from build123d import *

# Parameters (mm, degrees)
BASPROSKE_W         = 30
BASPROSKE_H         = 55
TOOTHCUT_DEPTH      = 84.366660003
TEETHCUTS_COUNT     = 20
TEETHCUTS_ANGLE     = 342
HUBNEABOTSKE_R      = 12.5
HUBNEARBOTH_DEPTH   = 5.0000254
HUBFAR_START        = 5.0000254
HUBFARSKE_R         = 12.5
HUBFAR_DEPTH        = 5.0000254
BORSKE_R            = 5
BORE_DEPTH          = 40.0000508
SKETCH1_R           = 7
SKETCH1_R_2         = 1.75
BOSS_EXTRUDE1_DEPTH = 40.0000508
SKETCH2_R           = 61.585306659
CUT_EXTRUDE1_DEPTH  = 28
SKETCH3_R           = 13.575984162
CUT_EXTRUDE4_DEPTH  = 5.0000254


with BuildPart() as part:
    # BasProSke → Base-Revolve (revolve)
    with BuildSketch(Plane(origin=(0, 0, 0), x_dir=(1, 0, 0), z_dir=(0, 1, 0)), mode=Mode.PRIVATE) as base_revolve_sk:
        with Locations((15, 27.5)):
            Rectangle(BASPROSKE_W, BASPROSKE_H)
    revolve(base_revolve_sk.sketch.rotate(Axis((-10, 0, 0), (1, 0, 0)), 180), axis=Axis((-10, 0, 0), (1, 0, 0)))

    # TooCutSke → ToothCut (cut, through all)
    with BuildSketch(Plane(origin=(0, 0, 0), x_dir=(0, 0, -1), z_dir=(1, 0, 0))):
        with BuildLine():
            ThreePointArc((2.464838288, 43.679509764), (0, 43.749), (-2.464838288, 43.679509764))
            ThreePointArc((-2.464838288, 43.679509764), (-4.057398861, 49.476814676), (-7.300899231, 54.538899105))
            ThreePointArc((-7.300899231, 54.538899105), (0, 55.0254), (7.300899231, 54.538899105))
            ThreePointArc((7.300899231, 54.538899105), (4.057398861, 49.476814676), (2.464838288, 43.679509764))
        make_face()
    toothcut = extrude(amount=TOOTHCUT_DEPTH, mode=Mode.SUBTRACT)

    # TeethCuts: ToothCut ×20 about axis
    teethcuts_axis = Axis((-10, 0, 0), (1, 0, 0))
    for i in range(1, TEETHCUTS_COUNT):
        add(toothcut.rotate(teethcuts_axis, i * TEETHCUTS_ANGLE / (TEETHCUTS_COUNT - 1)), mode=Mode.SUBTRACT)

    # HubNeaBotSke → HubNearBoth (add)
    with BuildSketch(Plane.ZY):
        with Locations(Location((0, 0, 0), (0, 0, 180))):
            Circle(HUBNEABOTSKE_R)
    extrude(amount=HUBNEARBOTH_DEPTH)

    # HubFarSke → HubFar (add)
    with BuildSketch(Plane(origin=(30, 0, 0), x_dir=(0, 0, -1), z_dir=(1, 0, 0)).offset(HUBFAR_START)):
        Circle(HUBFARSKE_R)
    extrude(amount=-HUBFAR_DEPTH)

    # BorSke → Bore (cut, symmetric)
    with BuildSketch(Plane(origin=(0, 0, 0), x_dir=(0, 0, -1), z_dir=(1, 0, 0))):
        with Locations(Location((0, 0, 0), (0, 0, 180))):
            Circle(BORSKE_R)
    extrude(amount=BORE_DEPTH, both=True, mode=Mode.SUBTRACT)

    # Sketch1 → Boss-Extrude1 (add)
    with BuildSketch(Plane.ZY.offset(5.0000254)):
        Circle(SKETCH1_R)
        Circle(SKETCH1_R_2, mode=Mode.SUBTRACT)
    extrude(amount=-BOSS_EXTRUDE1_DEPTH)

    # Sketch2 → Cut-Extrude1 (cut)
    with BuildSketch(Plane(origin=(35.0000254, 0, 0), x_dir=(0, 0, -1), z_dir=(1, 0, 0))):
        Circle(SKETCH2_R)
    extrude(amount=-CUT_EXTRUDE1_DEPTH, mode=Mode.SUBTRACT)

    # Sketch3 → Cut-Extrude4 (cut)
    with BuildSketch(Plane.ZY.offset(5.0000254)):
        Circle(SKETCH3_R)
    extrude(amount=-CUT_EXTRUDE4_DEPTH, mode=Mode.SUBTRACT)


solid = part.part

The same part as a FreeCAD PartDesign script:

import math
import FreeCAD as App
import Part
import Sketcher
Q = App.Units.Quantity


def add_polygon(sketch, points):
    """Adds a closed chain of lines whose ends are joined by coincident constraints."""
    first, n = sketch.GeometryCount, len(points)
    for a, b in zip(points, points[1:] + points[:1]):
        sketch.addGeometry(Part.LineSegment(App.Vector(*a, 0), App.Vector(*b, 0)), False)
    for i in range(n):
        sketch.addConstraint(Sketcher.Constraint("Coincident", first + i, 2, first + (i + 1) % n, 1))

doc = App.newDocument("Part")
body = doc.addObject("PartDesign::Body", "Body")

sketch1 = doc.addObject("Sketcher::SketchObject", "Sketch")
body.addObject(sketch1)
sketch1.AttachmentSupport = (doc.XZ_Plane, [""])
sketch1.MapMode = "FlatFace"
add_polygon(sketch1, [(0, -55), (0, 0), (30, 0), (30, -55)])
sketch1.addConstraint([
    Sketcher.Constraint("Vertical", 0),
    Sketcher.Constraint("Horizontal", 1),
    Sketcher.Constraint("Vertical", 2),
    Sketcher.Constraint("Horizontal", 3),
    Sketcher.Constraint("Coincident", 0, 2, -1, 1),
    Sketcher.Constraint("DistanceX", 1, 1, 1, 2, Q("30 mm")),
    Sketcher.Constraint("DistanceY", 0, 1, 0, 2, Q("55 mm")),
])
revolution = doc.addObject("PartDesign::Revolution", "Revolution")
body.addObject(revolution)
revolution.Profile = sketch1
revolution.ReferenceAxis = (sketch1, ["H_Axis"])
revolution.Angle = 360

sketch2 = doc.addObject("Sketcher::SketchObject", "Sketch001")
body.addObject(sketch2)
sketch2.AttachmentSupport = (doc.YZ_Plane, [""])
sketch2.MapMode = "FlatFace"
sketch2.addGeometry([
    Part.ArcOfCircle(Part.Circle(App.Vector(0, 0, 0), App.Vector(0, 0, 1), 43.7), math.radians(-3.23), math.radians(3.23)),
    Part.ArcOfCircle(Part.Circle(App.Vector(41.3, -22.3, 0), App.Vector(0, 0, 1), 20), math.radians(49), math.radians(83)),
    Part.ArcOfCircle(Part.Circle(App.Vector(0, 0, 0), App.Vector(0, 0, 1), 55), math.radians(-7.62), math.radians(7.62)),
    Part.ArcOfCircle(Part.Circle(App.Vector(41.3, 22.3, 0), App.Vector(0, 0, 1), 20), math.radians(-83), math.radians(-49)),
], False)
sketch2.addConstraint([
    Sketcher.Constraint("Coincident", 0, 1, 1, 2),
    Sketcher.Constraint("Coincident", 1, 1, 2, 1),
    Sketcher.Constraint("Coincident", 2, 2, 3, 2),
    Sketcher.Constraint("Coincident", 3, 1, 0, 2),
    Sketcher.Constraint("Coincident", 0, 3, -1, 1),
    Sketcher.Constraint("Coincident", 2, 3, -1, 1),
    Sketcher.Constraint("Equal", 1, 3),
    Sketcher.Constraint("Symmetric", 1, 3, 3, 3, -1),
    Sketcher.Constraint("Radius", 1, Q("20 mm")),
    Sketcher.Constraint("Radius", 0, Q("43.749 mm")),
    Sketcher.Constraint("Radius", 2, Q("55.0254 mm")),
    Sketcher.Constraint("DistanceX", -1, 1, 1, 1, Q("54.538899 mm")),
    Sketcher.Constraint("DistanceX", -1, 1, 1, 3, Q("41.340468 mm")),
])
pocket1 = doc.addObject("PartDesign::Pocket", "Pocket")
body.addObject(pocket1)
pocket1.Profile = sketch2
pocket1.Type = "ThroughAll"
pocket1.Reversed = True
doc.recompute()

polarpattern = doc.addObject("PartDesign::PolarPattern", "PolarPattern")
body.addObject(polarpattern)
polarpattern.Originals = [pocket1]
polarpattern.Axis = (doc.X_Axis, [""])
polarpattern.Angle = 360
polarpattern.Occurrences = 20
body.Tip = polarpattern

sketch3 = doc.addObject("Sketcher::SketchObject", "Sketch002")
body.addObject(sketch3)
sketch3.AttachmentSupport = (doc.YZ_Plane, [""])
sketch3.MapMode = "FlatFace"
sketch3.addGeometry(Part.Circle(App.Vector(0, 0, 0), App.Vector(0, 0, 1), 12), False)
sketch3.addConstraint([
    Sketcher.Constraint("Coincident", 0, 3, -1, 1),
    Sketcher.Constraint("Diameter", 0, Q("25 mm")),
])
pad1 = doc.addObject("PartDesign::Pad", "Pad")
body.addObject(pad1)
pad1.Profile = sketch3
pad1.Length = 5.000025
pad1.Reversed = True

sketch4 = doc.addObject("Sketcher::SketchObject", "Sketch003")
body.addObject(sketch4)
sketch4.AttachmentSupport = (doc.YZ_Plane, [""])
sketch4.MapMode = "FlatFace"
sketch4.AttachmentOffset = App.Placement(App.Vector(0, 0, 35.000025), App.Rotation())
sketch4.addGeometry(Part.Circle(App.Vector(0, 0, 0), App.Vector(0, 0, 1), 12), False)
sketch4.addConstraint([
    Sketcher.Constraint("Coincident", 0, 3, -1, 1),
    Sketcher.Constraint("Diameter", 0, Q("25 mm")),
])
pad2 = doc.addObject("PartDesign::Pad", "Pad001")
body.addObject(pad2)
pad2.Profile = sketch4
pad2.Length = 5.000025
pad2.Reversed = True

sketch5 = doc.addObject("Sketcher::SketchObject", "Sketch004")
body.addObject(sketch5)
sketch5.AttachmentSupport = (doc.YZ_Plane, [""])
sketch5.MapMode = "FlatFace"
sketch5.addGeometry(Part.Circle(App.Vector(0, 0, 0), App.Vector(0, 0, 1), 5), False)
sketch5.addConstraint([
    Sketcher.Constraint("Coincident", 0, 3, -1, 1),
    Sketcher.Constraint("Diameter", 0, Q("10 mm")),
])
pocket2 = doc.addObject("PartDesign::Pocket", "Pocket001")
body.addObject(pocket2)
pocket2.Profile = sketch5
pocket2.Length = 80.000102
pocket2.Midplane = True

sketch6 = doc.addObject("Sketcher::SketchObject", "Sketch005")
body.addObject(sketch6)
sketch6.AttachmentSupport = (doc.YZ_Plane, [""])
sketch6.MapMode = "FlatFace"
sketch6.AttachmentOffset = App.Placement(App.Vector(0, 0, -5.000025), App.Rotation())
sketch6.addGeometry([
    Part.Circle(App.Vector(0, 0, 0), App.Vector(0, 0, 1), 7),
    Part.Circle(App.Vector(0, 0, 0), App.Vector(0, 0, 1), 1.8),
], False)
sketch6.addConstraint([
    Sketcher.Constraint("Coincident", 0, 3, -1, 1),
    Sketcher.Constraint("Coincident", 1, 3, -1, 1),
    Sketcher.Constraint("Diameter", 0, Q("14 mm")),
    Sketcher.Constraint("Diameter", 1, Q("3.5 mm")),
])
pad3 = doc.addObject("PartDesign::Pad", "Pad002")
body.addObject(pad3)
pad3.Profile = sketch6
pad3.Length = 40.000051

sketch7 = doc.addObject("Sketcher::SketchObject", "Sketch006")
body.addObject(sketch7)
sketch7.AttachmentSupport = (doc.YZ_Plane, [""])
sketch7.MapMode = "FlatFace"
sketch7.AttachmentOffset = App.Placement(App.Vector(0, 0, 35.000025), App.Rotation())
sketch7.addGeometry(Part.Circle(App.Vector(0, 0, 0), App.Vector(0, 0, 1), 62), False)
sketch7.addConstraint([
    Sketcher.Constraint("Coincident", 0, 3, -1, 1),
    Sketcher.Constraint("Diameter", 0, Q("123.170613 mm")),
])
pocket3 = doc.addObject("PartDesign::Pocket", "Pocket002")
body.addObject(pocket3)
pocket3.Profile = sketch7
pocket3.Length = 28

sketch8 = doc.addObject("Sketcher::SketchObject", "Sketch007")
body.addObject(sketch8)
sketch8.AttachmentSupport = (doc.YZ_Plane, [""])
sketch8.MapMode = "FlatFace"
sketch8.AttachmentOffset = App.Placement(App.Vector(0, 0, -5.000025), App.Rotation())
sketch8.addGeometry(Part.Circle(App.Vector(0, 0, 0), App.Vector(0, 0, 1), 14), False)
sketch8.addConstraint([
    Sketcher.Constraint("Coincident", 0, 3, -1, 1),
    Sketcher.Constraint("Diameter", 0, Q("27.151968 mm")),
])
pocket4 = doc.addObject("PartDesign::Pocket", "Pocket003")
body.addObject(pocket4)
pocket4.Profile = sketch8
pocket4.Length = 5.000025
pocket4.Reversed = True

doc.recompute()
